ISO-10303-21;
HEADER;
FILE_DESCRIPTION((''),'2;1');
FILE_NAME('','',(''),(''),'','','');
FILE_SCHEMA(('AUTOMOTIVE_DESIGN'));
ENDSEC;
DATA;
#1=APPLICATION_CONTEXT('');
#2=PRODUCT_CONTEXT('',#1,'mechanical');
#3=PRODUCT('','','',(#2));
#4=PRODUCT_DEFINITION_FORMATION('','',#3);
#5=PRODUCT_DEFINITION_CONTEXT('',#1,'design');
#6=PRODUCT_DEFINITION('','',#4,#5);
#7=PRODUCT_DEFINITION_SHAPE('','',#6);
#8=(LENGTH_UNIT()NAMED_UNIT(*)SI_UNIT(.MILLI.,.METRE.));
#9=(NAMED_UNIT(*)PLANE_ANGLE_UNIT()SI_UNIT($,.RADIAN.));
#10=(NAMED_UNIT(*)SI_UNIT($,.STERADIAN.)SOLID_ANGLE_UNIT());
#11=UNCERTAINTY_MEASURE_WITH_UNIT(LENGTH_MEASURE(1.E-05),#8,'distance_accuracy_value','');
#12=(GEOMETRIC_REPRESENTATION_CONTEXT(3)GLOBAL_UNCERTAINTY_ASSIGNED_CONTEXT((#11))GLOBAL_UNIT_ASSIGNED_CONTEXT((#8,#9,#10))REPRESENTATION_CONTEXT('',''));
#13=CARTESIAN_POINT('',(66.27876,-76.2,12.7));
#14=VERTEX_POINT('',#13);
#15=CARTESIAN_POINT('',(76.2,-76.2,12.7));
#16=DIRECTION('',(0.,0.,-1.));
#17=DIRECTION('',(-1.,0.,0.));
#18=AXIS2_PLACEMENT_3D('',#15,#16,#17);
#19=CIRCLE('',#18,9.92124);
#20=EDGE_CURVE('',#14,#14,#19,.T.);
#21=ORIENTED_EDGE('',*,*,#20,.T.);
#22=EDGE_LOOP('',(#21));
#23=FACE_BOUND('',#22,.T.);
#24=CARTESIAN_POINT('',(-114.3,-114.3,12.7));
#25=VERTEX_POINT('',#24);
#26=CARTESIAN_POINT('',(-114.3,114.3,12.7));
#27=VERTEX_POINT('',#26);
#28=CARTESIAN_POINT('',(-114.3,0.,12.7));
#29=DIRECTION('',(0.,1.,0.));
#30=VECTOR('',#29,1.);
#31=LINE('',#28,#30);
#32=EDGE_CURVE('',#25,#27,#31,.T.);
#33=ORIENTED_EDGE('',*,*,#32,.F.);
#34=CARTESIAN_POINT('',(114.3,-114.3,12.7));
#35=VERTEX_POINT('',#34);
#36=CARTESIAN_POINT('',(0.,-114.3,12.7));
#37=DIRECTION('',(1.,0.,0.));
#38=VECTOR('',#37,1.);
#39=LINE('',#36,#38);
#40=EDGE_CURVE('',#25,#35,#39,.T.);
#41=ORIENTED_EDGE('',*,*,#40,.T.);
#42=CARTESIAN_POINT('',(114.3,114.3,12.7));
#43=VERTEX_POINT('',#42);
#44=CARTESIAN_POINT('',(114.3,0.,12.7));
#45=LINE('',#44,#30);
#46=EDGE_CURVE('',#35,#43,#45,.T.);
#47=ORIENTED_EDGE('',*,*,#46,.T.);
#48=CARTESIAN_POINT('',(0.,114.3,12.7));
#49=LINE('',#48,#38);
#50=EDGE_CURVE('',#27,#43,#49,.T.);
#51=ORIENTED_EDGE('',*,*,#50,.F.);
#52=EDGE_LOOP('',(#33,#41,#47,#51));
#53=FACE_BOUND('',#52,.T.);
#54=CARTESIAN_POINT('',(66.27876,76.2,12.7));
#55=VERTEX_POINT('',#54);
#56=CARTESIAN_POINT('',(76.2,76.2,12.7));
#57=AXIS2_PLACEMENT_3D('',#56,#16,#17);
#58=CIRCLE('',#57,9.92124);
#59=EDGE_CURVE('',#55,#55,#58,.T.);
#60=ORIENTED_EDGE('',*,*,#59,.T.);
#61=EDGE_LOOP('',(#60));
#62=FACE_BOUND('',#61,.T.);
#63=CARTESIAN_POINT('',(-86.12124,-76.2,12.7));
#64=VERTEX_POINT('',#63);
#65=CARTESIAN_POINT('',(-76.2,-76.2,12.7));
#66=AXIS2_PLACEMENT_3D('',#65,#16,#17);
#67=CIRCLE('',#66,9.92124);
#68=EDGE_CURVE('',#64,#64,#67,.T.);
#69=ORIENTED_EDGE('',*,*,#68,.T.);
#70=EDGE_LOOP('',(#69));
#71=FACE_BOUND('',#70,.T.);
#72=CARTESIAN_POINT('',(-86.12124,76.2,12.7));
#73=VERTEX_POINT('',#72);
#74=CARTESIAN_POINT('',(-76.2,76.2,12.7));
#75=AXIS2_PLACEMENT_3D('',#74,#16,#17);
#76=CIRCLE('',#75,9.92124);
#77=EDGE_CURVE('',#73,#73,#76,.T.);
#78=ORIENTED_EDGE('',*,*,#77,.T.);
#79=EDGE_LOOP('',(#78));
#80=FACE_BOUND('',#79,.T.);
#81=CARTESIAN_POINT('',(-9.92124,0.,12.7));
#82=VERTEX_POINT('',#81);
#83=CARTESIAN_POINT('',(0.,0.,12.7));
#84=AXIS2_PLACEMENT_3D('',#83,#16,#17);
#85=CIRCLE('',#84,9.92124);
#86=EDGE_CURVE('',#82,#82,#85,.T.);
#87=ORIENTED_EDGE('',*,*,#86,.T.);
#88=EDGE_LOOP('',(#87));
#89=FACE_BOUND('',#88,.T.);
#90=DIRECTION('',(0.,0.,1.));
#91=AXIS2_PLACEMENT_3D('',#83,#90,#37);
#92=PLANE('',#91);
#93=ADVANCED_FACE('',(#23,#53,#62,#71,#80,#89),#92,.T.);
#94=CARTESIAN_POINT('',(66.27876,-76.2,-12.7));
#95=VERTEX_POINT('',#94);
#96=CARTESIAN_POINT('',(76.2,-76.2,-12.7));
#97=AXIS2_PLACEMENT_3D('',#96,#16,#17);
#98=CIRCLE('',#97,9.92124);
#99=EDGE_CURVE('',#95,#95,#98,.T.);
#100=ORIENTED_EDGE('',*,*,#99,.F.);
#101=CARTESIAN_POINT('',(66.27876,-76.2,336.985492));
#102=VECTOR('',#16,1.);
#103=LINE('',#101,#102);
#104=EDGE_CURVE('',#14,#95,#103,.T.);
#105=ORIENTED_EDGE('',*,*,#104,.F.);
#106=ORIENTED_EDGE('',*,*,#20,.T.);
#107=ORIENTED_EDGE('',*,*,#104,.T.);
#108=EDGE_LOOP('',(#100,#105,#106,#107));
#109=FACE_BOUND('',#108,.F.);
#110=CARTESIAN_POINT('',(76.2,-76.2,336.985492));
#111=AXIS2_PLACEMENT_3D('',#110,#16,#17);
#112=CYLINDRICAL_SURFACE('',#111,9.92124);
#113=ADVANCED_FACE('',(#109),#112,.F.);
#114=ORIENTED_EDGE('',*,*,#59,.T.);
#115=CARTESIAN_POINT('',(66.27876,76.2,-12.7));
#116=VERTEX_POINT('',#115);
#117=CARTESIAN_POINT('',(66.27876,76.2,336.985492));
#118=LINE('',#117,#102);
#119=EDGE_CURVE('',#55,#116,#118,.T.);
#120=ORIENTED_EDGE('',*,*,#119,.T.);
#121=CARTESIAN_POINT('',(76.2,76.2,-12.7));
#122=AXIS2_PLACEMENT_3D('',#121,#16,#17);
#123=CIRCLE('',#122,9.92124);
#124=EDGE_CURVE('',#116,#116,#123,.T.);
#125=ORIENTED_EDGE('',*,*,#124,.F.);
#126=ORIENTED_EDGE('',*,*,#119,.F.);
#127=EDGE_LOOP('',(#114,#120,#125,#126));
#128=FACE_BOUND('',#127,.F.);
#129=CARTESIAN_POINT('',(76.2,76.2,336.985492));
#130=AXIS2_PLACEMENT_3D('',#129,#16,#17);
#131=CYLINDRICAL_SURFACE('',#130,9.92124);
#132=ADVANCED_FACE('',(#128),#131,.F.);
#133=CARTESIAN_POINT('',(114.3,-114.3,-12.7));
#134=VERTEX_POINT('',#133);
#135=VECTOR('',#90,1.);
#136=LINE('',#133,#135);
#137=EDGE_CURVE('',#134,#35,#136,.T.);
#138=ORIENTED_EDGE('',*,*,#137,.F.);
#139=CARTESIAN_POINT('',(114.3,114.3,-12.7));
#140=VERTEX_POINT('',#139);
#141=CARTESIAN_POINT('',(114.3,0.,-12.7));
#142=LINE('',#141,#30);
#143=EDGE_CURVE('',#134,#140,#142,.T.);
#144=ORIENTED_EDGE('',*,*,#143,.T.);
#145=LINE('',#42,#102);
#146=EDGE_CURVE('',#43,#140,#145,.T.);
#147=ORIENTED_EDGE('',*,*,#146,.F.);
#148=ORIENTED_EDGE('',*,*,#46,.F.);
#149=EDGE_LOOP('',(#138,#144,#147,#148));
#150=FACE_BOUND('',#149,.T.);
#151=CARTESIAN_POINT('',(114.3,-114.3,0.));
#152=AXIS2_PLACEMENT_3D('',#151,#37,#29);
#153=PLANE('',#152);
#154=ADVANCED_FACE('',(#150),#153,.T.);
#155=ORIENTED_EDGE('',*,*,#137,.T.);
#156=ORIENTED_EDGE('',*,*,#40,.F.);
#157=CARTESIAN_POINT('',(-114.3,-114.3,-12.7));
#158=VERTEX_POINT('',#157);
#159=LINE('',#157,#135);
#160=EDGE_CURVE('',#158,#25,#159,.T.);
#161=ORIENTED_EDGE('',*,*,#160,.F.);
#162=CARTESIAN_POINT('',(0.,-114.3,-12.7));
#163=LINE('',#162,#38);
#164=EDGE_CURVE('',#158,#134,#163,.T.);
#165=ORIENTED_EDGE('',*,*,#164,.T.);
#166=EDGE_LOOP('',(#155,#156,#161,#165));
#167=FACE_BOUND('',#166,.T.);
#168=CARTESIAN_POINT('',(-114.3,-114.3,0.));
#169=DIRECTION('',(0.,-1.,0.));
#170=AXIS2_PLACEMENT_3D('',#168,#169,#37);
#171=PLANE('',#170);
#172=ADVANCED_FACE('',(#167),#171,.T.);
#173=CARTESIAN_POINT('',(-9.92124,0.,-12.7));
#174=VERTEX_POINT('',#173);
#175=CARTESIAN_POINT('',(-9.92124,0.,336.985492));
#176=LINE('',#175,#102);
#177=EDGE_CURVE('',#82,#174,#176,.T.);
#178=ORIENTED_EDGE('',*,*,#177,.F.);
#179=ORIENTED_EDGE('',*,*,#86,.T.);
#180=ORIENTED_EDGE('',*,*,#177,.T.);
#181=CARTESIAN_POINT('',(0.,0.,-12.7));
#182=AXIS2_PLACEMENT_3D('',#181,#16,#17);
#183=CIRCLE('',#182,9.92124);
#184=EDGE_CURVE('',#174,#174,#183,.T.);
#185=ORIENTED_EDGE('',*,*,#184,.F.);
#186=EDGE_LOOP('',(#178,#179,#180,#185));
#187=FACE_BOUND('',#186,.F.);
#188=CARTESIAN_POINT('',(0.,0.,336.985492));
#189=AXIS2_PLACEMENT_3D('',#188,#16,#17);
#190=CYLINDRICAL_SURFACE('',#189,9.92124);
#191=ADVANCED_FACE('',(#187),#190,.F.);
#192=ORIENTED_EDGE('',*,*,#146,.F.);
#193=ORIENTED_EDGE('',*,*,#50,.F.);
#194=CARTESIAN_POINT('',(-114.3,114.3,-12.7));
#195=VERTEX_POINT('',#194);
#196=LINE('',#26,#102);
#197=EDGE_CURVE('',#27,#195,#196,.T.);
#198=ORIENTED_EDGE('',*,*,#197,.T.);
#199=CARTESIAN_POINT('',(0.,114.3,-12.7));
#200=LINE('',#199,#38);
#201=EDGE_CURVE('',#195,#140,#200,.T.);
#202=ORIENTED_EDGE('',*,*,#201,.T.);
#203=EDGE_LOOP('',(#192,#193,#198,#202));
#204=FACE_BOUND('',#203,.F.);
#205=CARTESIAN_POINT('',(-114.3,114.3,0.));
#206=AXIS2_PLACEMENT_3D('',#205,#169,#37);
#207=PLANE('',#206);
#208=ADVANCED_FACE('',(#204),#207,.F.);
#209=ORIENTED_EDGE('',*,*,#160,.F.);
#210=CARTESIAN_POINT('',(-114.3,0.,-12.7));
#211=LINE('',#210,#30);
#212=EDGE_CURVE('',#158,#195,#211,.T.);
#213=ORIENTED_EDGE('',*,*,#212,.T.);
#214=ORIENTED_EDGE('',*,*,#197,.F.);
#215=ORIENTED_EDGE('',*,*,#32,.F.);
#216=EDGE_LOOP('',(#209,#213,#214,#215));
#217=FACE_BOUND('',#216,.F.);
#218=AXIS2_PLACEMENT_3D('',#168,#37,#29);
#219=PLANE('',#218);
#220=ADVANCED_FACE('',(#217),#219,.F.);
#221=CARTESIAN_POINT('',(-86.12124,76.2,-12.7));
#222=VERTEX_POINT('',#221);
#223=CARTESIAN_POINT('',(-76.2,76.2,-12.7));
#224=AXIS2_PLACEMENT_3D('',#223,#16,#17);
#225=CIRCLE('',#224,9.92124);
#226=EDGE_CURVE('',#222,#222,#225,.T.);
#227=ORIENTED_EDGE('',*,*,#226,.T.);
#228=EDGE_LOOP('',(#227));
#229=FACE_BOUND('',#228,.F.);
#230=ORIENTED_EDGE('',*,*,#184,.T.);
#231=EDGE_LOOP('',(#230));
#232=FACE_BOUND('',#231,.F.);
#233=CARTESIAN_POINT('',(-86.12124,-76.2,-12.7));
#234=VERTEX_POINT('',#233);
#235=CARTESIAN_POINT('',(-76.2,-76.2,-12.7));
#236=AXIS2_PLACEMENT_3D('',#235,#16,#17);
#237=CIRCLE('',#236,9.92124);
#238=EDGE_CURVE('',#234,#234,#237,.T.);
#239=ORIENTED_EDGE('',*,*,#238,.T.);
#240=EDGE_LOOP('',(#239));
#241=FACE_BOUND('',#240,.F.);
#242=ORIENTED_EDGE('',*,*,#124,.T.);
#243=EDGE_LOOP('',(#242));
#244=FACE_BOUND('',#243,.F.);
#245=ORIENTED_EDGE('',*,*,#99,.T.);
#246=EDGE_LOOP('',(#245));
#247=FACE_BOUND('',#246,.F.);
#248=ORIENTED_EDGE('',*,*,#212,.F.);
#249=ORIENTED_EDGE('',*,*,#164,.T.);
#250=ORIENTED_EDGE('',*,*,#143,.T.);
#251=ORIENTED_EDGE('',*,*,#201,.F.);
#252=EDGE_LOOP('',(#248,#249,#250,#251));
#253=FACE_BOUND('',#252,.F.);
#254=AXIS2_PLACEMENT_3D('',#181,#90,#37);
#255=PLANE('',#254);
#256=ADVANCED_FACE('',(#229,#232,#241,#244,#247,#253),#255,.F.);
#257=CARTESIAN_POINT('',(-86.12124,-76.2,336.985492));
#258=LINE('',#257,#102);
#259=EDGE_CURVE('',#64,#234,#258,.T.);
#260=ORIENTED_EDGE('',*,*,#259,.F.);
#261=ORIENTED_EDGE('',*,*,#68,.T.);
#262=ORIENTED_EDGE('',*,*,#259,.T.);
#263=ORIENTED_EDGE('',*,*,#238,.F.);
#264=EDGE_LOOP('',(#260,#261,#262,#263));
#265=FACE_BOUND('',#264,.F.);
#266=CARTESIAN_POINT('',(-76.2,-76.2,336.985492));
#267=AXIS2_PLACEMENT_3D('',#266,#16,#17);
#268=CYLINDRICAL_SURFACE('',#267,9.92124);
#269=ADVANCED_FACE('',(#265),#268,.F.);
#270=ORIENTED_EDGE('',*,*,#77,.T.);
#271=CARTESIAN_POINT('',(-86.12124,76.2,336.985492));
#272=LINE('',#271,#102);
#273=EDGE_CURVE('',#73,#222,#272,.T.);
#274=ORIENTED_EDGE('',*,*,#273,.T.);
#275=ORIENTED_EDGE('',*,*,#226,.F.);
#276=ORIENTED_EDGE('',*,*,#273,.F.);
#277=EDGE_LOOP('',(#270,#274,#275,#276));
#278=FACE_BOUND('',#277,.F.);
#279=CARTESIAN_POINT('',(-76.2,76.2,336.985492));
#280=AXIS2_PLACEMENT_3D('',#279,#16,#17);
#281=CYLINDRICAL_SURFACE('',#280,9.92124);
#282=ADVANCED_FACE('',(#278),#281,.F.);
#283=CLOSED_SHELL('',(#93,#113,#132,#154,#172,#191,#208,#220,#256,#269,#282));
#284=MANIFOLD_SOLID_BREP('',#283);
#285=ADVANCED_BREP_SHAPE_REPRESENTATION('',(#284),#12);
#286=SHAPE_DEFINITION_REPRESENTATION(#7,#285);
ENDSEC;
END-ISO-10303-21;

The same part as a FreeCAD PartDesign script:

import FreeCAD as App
import Part
import Sketcher

V = App.Vector
Q = App.Units.Quantity

doc = App.newDocument("Part")
body = doc.addObject("PartDesign::Body", "Body")

# Sketch on XY plane
sketch1 = doc.addObject("Sketcher::SketchObject", "Sketch")
body.addObject(sketch1)
sketch1.AttachmentSupport = (doc.XY_Plane, [""])
sketch1.MapMode = "FlatFace"
sketch1.addGeometry([
    Part.LineSegment(V(-114.3, 114.3, 0), V(-114.3, -114.3, 0)),
    Part.LineSegment(V(-114.3, -114.3, 0), V(114.3, -114.3, 0)),
    Part.LineSegment(V(114.3, -114.3, 0), V(114.3, 114.3, 0)),
    Part.LineSegment(V(114.3, 114.3, 0), V(-114.3, 114.3, 0)),
], False)
sketch1.addConstraint([
    Sketcher.Constraint("Coincident", 0, 2, 1, 1),
    Sketcher.Constraint("Coincident", 1, 2, 2, 1),
    Sketcher.Constraint("Coincident", 2, 2, 3, 1),
    Sketcher.Constraint("Coincident", 3, 2, 0, 1),
    Sketcher.Constraint("Vertical", 0),
    Sketcher.Constraint("Horizontal", 1),
    Sketcher.Constraint("Vertical", 2),
    Sketcher.Constraint("Horizontal", 3),
    Sketcher.Constraint("Symmetric", 0, 2, 2, 2, -1, 1),
    Sketcher.Constraint("Equal", 3, 0),
    Sketcher.Constraint("DistanceX", 1, 1, 1, 2, Q("9 in")),
])
pad1 = doc.addObject("PartDesign::Pad", "Pad")
body.addObject(pad1)
pad1.Profile = sketch1
pad1.Length = Q("1 in")
pad1.Midplane = True

# Sketch on XY plane
sketch2 = doc.addObject("Sketcher::SketchObject", "Sketch001")
body.addObject(sketch2)
sketch2.AttachmentSupport = (doc.XY_Plane, [""])
sketch2.MapMode = "FlatFace"
sketch2.AttachmentOffset = App.Placement(V(0, 0, 0.5 * 25.4), App.Rotation())
sketch2.addGeometry([
    Part.Circle(V(-76.2, 76.2, 0), V(0, 0, 1), 9.92124),
    Part.Circle(V(76.2, 76.2, 0), V(0, 0, 1), 9.92124),
    Part.Circle(V(-76.2, -76.2, 0), V(0, 0, 1), 9.92124),
    Part.Circle(V(76.2, -76.2, 0), V(0, 0, 1), 9.92124),
], False)
sketch2.addConstraint([
    Sketcher.Constraint("Equal", 0, 1),
    Sketcher.Constraint("Equal", 1, 2),
    Sketcher.Constraint("Equal", 2, 3),
    Sketcher.Constraint("Symmetric", 1, 3, 2, 3, -1, 1),
    Sketcher.Constraint("Symmetric", 0, 3, 3, 3, -1, 1),
    Sketcher.Constraint("Symmetric", 0, 3, 1, 3, -2),
    Sketcher.Constraint("DistanceX", 0, 3, -1, 1, Q("3 in")),
    Sketcher.Constraint("DistanceY", -1, 1, 0, 3, Q("3 in")),
    Sketcher.Constraint("Diameter", 0, Q("0.7812 in")),
])
doc.recompute()
hole = doc.addObject("PartDesign::Hole", "Hole")
body.addObject(hole)
hole.Profile = sketch2
hole.ThreadType = "None"
hole.Diameter = Q("0.7812 in")
hole.DepthType = "ThroughAll"

# Sketch on XY plane
sketch3 = doc.addObject("Sketcher::SketchObject", "Sketch002")
body.addObject(sketch3)
sketch3.AttachmentSupport = (doc.XY_Plane, [""])
sketch3.MapMode = "FlatFace"
sketch3.AttachmentOffset = App.Placement(V(0, 0, 0.5 * 25.4), App.Rotation())
sketch3.addGeometry(Part.Circle(V(0, 0, 0), V(0, 0, 1), 9.92124), False)
sketch3.addConstraint([
    Sketcher.Constraint("Coincident", 0, 3, -1, 1),
    Sketcher.Constraint("Diameter", 0, Q("0.7812 in")),
])
doc.recompute()
hole2 = doc.addObject("PartDesign::Hole", "Hole001")
body.addObject(hole2)
hole2.Profile = sketch3
hole2.ThreadType = "None"
hole2.Diameter = Q("0.7812 in")
hole2.DepthType = "ThroughAll"

doc.recompute()
